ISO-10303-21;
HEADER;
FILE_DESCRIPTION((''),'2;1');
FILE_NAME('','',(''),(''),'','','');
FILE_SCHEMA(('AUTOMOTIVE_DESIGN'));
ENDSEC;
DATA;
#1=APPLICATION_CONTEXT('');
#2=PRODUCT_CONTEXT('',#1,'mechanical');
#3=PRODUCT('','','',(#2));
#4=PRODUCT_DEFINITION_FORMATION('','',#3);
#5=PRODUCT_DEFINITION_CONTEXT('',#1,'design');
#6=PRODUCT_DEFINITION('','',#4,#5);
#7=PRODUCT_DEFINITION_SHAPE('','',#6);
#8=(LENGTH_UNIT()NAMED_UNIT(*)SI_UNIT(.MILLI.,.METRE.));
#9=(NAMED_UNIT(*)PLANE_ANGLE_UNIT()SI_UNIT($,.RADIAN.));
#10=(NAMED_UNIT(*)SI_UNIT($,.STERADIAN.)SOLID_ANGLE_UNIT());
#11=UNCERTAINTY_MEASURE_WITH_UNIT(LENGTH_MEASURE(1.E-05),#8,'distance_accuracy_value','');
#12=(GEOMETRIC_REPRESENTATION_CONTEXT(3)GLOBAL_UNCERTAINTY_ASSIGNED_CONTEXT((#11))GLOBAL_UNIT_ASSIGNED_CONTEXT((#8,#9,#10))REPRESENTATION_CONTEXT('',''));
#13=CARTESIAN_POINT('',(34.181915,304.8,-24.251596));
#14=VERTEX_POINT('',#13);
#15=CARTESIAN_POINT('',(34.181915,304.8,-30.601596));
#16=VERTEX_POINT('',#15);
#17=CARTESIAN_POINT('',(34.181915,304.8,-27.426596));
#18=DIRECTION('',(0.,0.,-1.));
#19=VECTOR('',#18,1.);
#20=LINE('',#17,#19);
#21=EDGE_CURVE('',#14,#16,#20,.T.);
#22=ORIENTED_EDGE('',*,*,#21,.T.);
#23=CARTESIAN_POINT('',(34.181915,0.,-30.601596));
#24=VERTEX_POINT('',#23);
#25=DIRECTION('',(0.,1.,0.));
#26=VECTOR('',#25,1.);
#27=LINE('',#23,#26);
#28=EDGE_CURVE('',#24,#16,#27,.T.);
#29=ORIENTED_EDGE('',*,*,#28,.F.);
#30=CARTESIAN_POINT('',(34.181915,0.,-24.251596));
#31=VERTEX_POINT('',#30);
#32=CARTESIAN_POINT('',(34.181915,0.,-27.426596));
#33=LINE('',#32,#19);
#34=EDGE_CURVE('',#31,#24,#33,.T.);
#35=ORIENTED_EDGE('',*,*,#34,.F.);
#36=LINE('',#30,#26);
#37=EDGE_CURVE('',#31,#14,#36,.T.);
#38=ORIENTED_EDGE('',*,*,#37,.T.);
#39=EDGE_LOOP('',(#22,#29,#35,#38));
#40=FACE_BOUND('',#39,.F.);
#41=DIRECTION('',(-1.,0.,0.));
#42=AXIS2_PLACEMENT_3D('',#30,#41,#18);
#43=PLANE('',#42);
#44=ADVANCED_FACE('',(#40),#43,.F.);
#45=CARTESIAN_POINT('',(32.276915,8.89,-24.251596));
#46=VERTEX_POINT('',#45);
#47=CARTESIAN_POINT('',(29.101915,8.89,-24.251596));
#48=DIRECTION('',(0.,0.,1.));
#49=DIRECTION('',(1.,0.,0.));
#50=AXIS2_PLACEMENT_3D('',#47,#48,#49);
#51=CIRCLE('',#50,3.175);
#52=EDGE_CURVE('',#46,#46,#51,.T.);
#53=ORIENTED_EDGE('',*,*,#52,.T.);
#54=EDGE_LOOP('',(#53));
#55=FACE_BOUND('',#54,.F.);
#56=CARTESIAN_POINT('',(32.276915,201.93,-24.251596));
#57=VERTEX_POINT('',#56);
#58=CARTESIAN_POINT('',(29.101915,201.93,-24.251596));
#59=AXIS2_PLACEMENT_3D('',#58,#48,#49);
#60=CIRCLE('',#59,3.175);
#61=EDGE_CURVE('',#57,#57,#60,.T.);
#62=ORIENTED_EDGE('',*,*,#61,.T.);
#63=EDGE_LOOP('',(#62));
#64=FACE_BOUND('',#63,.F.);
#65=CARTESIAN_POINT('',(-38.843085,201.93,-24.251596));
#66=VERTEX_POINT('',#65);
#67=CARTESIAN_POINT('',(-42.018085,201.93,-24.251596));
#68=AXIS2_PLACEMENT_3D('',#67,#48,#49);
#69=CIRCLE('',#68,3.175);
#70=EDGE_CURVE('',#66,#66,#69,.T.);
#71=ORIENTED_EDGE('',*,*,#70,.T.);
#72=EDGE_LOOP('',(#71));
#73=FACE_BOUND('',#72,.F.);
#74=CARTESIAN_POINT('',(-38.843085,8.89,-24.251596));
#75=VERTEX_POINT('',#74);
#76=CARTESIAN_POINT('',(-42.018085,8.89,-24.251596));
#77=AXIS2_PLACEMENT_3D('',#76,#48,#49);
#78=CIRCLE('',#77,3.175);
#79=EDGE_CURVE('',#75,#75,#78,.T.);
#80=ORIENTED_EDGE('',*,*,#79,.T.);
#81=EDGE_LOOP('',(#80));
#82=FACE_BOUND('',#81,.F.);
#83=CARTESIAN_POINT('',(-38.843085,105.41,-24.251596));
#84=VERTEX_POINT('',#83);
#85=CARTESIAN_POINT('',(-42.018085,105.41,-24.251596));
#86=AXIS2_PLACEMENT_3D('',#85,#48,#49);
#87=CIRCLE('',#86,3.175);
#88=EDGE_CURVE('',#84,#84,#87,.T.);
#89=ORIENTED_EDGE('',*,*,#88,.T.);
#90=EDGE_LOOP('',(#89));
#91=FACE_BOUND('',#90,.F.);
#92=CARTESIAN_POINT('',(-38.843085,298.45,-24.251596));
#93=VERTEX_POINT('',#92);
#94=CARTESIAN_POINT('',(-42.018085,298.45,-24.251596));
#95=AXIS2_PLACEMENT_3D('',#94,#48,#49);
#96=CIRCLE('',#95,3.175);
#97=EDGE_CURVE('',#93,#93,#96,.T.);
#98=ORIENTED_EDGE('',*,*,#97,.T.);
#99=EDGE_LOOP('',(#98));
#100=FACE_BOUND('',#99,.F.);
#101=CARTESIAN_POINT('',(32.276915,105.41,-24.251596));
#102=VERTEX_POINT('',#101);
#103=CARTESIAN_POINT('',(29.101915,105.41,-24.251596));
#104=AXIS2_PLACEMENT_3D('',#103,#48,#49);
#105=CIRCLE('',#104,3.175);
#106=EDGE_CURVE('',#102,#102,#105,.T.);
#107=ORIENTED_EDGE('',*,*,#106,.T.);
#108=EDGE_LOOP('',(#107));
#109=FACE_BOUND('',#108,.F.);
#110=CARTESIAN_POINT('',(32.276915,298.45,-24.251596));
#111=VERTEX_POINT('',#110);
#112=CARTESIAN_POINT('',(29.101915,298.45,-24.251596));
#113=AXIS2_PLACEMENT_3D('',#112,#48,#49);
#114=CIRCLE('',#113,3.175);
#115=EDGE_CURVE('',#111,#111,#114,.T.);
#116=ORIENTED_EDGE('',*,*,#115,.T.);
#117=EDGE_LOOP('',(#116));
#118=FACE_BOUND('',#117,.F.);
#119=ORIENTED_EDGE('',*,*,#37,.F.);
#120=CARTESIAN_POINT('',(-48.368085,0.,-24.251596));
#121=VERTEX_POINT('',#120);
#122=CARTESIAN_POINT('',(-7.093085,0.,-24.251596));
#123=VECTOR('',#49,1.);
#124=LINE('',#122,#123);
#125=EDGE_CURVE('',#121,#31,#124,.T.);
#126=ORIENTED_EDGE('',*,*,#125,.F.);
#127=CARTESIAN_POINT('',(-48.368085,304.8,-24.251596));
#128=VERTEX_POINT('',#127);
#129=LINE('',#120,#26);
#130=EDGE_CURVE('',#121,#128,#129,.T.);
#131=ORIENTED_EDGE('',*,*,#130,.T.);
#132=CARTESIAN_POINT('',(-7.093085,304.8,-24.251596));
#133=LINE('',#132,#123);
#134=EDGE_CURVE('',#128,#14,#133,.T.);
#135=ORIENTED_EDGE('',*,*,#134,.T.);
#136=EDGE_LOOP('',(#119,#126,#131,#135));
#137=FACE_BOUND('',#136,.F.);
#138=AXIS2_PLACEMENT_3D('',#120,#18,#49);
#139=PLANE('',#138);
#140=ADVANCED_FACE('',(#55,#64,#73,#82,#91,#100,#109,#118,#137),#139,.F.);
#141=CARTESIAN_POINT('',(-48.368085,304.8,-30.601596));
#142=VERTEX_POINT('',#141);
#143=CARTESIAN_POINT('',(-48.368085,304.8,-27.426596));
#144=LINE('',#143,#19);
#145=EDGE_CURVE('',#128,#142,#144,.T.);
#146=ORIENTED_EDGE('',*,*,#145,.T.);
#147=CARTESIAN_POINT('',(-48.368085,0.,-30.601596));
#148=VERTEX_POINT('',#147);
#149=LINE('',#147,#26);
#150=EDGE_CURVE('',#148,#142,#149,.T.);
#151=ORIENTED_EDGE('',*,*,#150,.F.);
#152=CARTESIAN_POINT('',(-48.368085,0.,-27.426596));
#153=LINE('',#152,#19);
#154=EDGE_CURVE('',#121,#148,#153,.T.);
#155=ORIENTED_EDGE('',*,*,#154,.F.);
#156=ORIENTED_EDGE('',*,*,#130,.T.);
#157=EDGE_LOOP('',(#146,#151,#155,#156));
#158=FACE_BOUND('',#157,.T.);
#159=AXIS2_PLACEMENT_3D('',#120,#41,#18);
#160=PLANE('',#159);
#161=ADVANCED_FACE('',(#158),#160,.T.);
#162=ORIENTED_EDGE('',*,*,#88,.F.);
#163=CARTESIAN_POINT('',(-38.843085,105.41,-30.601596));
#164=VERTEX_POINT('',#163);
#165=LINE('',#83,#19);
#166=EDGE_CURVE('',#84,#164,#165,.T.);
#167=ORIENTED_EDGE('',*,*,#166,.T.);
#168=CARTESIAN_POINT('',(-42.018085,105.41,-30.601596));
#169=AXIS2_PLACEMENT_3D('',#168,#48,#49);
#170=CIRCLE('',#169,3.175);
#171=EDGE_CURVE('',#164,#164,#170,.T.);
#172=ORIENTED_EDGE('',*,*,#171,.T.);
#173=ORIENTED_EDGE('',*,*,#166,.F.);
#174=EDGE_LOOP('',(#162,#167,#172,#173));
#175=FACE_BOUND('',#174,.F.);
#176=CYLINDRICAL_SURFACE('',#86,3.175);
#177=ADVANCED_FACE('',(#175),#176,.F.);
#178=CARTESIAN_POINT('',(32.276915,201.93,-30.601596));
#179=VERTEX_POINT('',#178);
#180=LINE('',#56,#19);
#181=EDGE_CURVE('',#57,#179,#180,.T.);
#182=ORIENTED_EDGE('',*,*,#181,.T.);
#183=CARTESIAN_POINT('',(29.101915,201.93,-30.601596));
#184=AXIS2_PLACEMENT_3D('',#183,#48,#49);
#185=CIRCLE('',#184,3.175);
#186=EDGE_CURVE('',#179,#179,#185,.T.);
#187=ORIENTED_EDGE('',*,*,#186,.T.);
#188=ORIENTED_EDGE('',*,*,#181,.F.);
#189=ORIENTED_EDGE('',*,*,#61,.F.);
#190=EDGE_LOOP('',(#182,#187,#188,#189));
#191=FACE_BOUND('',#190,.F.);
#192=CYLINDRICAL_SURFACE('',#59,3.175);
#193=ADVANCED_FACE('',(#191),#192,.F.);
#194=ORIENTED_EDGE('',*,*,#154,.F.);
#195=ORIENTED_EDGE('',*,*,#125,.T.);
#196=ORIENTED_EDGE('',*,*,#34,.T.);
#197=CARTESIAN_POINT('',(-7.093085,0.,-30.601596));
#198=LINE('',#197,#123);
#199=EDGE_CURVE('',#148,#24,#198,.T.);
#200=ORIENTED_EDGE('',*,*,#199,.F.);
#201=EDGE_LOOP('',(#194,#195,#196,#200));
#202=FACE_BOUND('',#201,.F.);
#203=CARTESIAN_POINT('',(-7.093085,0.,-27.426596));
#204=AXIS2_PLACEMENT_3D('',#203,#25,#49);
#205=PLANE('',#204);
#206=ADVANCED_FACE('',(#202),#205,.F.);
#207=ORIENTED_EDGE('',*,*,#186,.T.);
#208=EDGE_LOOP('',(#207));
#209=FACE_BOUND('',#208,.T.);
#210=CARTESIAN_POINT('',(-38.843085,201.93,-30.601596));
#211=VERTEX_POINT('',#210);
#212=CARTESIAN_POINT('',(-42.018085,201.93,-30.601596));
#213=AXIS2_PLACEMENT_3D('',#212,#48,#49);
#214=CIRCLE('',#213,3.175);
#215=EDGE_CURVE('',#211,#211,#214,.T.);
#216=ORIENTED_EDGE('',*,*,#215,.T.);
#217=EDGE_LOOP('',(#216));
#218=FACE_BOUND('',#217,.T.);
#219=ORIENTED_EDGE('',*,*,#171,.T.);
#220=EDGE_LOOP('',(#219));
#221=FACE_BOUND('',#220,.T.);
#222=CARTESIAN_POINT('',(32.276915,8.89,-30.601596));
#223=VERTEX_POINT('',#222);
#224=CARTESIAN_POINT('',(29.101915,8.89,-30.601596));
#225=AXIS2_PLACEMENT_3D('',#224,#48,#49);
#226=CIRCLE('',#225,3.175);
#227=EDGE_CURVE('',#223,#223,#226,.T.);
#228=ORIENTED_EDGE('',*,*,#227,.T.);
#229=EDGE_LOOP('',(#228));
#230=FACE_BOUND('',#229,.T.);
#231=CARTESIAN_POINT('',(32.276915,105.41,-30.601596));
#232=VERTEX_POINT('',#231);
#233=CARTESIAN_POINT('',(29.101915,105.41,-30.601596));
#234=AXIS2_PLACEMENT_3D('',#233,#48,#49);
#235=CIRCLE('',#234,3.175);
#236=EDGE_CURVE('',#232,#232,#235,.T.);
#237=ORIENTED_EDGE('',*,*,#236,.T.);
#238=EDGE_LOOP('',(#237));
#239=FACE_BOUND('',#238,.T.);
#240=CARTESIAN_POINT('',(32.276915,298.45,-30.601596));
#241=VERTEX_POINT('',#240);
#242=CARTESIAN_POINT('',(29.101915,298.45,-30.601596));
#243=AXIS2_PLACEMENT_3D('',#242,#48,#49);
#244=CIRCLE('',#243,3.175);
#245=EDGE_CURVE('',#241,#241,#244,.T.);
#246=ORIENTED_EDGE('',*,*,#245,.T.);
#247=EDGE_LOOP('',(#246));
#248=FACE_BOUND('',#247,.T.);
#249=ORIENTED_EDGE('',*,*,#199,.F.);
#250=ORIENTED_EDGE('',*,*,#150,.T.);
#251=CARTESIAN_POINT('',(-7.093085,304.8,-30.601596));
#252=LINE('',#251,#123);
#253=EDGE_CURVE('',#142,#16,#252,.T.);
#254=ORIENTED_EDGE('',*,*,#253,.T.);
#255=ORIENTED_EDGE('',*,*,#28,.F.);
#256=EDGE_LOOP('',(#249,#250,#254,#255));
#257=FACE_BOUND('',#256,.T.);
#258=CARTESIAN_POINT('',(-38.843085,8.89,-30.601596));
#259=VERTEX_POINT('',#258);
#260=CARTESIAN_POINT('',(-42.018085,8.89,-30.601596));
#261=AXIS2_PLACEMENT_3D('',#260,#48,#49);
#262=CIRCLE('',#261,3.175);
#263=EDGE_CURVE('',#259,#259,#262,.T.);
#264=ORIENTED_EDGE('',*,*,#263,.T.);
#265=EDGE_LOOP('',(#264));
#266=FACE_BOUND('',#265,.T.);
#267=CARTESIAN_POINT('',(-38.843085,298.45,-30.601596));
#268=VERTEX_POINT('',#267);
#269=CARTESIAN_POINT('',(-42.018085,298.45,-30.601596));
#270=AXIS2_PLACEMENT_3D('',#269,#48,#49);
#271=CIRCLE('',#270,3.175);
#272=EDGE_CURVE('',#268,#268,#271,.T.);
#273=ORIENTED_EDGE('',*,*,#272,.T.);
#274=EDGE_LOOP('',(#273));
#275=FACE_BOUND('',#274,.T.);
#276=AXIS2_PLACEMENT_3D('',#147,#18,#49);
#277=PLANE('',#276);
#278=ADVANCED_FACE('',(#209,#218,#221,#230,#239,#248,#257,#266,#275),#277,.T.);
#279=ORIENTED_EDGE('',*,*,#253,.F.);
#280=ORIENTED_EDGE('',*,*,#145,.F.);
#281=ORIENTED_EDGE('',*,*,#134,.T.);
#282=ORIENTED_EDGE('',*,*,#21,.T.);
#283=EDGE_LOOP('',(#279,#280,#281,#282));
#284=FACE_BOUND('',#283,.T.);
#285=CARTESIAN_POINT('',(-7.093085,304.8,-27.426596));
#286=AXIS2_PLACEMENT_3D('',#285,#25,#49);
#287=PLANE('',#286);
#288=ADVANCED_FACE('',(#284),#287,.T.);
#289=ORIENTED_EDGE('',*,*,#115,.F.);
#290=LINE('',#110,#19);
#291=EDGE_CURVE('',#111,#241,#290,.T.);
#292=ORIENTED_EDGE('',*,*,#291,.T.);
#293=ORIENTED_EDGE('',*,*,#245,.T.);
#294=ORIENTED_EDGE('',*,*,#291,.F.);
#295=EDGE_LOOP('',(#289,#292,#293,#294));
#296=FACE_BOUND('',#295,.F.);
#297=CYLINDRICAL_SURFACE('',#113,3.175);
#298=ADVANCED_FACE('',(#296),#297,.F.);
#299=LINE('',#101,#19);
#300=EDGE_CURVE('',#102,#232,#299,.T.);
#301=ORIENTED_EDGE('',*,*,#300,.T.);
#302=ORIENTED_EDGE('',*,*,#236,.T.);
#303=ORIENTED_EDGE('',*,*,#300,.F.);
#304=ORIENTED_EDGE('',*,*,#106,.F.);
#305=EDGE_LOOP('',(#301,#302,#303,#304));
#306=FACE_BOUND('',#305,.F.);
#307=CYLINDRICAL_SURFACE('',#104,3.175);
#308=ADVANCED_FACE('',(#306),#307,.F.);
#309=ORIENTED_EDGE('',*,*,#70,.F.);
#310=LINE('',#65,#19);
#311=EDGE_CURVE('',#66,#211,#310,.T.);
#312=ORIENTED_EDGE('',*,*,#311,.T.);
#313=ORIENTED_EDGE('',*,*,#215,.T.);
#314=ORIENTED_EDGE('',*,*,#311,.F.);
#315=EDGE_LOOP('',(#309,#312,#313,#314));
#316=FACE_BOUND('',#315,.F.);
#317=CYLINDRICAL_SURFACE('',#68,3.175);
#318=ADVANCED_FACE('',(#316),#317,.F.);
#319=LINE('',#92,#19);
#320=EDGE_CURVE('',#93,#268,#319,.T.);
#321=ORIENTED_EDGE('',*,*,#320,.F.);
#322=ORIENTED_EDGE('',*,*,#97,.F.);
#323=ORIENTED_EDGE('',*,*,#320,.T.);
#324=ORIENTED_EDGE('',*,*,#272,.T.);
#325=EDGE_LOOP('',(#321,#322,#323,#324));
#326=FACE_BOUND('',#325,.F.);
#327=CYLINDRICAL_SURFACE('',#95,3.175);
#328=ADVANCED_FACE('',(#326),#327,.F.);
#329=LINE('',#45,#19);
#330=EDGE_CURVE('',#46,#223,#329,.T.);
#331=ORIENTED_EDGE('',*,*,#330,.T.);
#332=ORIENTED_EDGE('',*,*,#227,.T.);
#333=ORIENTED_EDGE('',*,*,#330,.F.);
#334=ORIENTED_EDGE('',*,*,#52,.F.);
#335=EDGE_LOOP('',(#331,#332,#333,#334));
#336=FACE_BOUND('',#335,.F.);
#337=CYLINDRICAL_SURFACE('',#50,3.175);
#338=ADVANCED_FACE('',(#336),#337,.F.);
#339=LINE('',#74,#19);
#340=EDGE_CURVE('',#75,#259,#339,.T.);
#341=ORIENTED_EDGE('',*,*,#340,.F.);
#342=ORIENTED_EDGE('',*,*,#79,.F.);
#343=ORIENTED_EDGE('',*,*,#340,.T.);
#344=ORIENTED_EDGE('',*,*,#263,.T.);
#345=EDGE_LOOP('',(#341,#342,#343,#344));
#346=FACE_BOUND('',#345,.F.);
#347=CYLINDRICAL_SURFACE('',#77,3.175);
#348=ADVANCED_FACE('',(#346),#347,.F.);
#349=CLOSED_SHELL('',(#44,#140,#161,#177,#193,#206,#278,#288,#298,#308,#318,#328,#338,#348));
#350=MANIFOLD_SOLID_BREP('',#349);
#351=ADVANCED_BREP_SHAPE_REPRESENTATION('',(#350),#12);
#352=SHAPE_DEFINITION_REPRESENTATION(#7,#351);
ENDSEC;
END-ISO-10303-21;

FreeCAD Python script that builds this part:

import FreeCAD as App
import Part
import Sketcher
from FreeCAD import Vector
Q = App.Units.Quantity


def add_polygon(sketch, points):
    """Adds a closed chain of lines whose ends are joined by coincident constraints."""
    first, n = sketch.GeometryCount, len(points)
    for a, b in zip(points, points[1:] + points[:1]):
        sketch.addGeometry(Part.LineSegment(App.Vector(*a, 0), App.Vector(*b, 0)), False)
    for i in range(n):
        sketch.addConstraint(Sketcher.Constraint("Coincident", first + i, 2, first + (i + 1) % n, 1))

doc = App.newDocument("Part")
body = doc.addObject("PartDesign::Body", "Body")

# Sketch on XZ plane
sketch1 = body.newObject("Sketcher::SketchObject", "Sketch")
sketch1.AttachmentSupport = (doc.getObject("XZ_Plane"), [""])
sketch1.MapMode = "FlatFace"
add_polygon(sketch1, [(-48, -31), (-48, -24), (34, -24), (34, -31)])  # lines 0-3
sketch1.addConstraint(Sketcher.Constraint("Vertical", 0))
sketch1.addConstraint(Sketcher.Constraint("Horizontal", 1))
sketch1.addConstraint(Sketcher.Constraint("Vertical", 2))
sketch1.addConstraint(Sketcher.Constraint("Horizontal", 3))
sketch1.addConstraint(Sketcher.Constraint("DistanceX", 1, 1, 1, 2, Q("3.25 in")))
sketch1.addConstraint(Sketcher.Constraint("DistanceY", 0, 1, 0, 2, Q("0.25 in")))
sketch1.addConstraint(Sketcher.Constraint("DistanceX", 0, 2, -1, 1, 48.368085))
sketch1.addConstraint(Sketcher.Constraint("DistanceY", 0, 2, -1, 1, 24.251596))
pad1 = body.newObject("PartDesign::Pad", "Pad")
pad1.Profile = sketch1
pad1.Length = Q("12 in")
pad1.Reversed = True

# Sketch on XY plane
sketch2 = body.newObject("Sketcher::SketchObject", "Sketch001")
sketch2.AttachmentSupport = (doc.getObject("XY_Plane"), [""])
sketch2.MapMode = "FlatFace"
sketch2.AttachmentOffset = App.Placement(Vector(0, 0, -24.251596), App.Rotation())
sketch2.addGeometry(Part.Circle(Vector(-42, 298.4, 0), Vector(0, 0, 1), 3.2), False)
sketch2.addConstraint(Sketcher.Constraint("Diameter", 0, Q("0.25 in")))
sketch2.addConstraint(Sketcher.Constraint("DistanceY", -1, 1, 0, 3, Q("11.75 in")))
sketch2.addConstraint(Sketcher.Constraint("DistanceX", 0, 3, -1, 1, 42.018085))
pocket1 = body.newObject("PartDesign::Pocket", "Pocket")
pocket1.Profile = sketch2
pocket1.Length = Q("6 in")
doc.recompute()

linearpattern = body.newObject("PartDesign::LinearPattern", "LinearPattern")
linearpattern.Originals = [pocket1]
linearpattern.Direction = (doc.getObject("Y_Axis"), [""])
linearpattern.Mode = "offset"
linearpattern.Offset = Q("3.8 in")
linearpattern.Occurrences = 4
linearpattern.Reversed = True
body.Tip = linearpattern
doc.recompute()

linearpattern2 = body.newObject("PartDesign::LinearPattern", "LinearPattern001")
linearpattern2.Originals = [pocket1]
linearpattern2.Direction = (doc.getObject("X_Axis"), [""])
linearpattern2.Mode = "offset"
linearpattern2.Offset = Q("2.8 in")
linearpattern2.Occurrences = 2
body.Tip = linearpattern2

# Sketch on XY plane
sketch3 = body.newObject("Sketcher::SketchObject", "Sketch002")
sketch3.AttachmentSupport = (doc.getObject("XY_Plane"), [""])
sketch3.MapMode = "FlatFace"
sketch3.AttachmentOffset = App.Placement(Vector(0, 0, -24.251596), App.Rotation())
sketch3.addGeometry(Part.Circle(Vector(29.1, 201.9, 0), Vector(0, 0, 1), 3.2), False)
sketch3.addConstraint(Sketcher.Constraint("Diameter", 0, Q("0.25 in")))
sketch3.addConstraint(Sketcher.Constraint("DistanceY", -1, 1, 0, 3, Q("7.95 in")))
sketch3.addConstraint(Sketcher.Constraint("DistanceX", -1, 1, 0, 3, 29.101915))
pocket2 = body.newObject("PartDesign::Pocket", "Pocket001")
pocket2.Profile = sketch3
pocket2.Length = Q("6 in")

# Sketch on XY plane
sketch4 = body.newObject("Sketcher::SketchObject", "Sketch003")
sketch4.AttachmentSupport = (doc.getObject("XY_Plane"), [""])
sketch4.MapMode = "FlatFace"
sketch4.AttachmentOffset = App.Placement(Vector(0, 0, -24.251596), App.Rotation())
sketch4.addGeometry(Part.Circle(Vector(29.1, 105.4, 0), Vector(0, 0, 1), 3.2), False)
sketch4.addConstraint(Sketcher.Constraint("Diameter", 0, Q("0.25 in")))
sketch4.addConstraint(Sketcher.Constraint("DistanceY", -1, 1, 0, 3, Q("4.15 in")))
sketch4.addConstraint(Sketcher.Constraint("DistanceX", -1, 1, 0, 3, 29.101915))
pocket3 = body.newObject("PartDesign::Pocket", "Pocket002")
pocket3.Profile = sketch4
pocket3.Length = Q("6 in")

# Sketch on XY plane
sketch5 = body.newObject("Sketcher::SketchObject", "Sketch004")
sketch5.AttachmentSupport = (doc.getObject("XY_Plane"), [""])
sketch5.MapMode = "FlatFace"
sketch5.AttachmentOffset = App.Placement(Vector(0, 0, -24.251596), App.Rotation())
sketch5.addGeometry(Part.Circle(Vector(29.1, 8.9, 0), Vector(0, 0, 1), 3.2), False)
sketch5.addConstraint(Sketcher.Constraint("Diameter", 0, Q("0.25 in")))
sketch5.addConstraint(Sketcher.Constraint("DistanceY", -1, 1, 0, 3, Q("0.35 in")))
sketch5.addConstraint(Sketcher.Constraint("DistanceX", -1, 1, 0, 3, 29.101915))
pocket4 = body.newObject("PartDesign::Pocket", "Pocket003")
pocket4.Profile = sketch5
pocket4.Length = Q("6 in")

doc.recompute()
